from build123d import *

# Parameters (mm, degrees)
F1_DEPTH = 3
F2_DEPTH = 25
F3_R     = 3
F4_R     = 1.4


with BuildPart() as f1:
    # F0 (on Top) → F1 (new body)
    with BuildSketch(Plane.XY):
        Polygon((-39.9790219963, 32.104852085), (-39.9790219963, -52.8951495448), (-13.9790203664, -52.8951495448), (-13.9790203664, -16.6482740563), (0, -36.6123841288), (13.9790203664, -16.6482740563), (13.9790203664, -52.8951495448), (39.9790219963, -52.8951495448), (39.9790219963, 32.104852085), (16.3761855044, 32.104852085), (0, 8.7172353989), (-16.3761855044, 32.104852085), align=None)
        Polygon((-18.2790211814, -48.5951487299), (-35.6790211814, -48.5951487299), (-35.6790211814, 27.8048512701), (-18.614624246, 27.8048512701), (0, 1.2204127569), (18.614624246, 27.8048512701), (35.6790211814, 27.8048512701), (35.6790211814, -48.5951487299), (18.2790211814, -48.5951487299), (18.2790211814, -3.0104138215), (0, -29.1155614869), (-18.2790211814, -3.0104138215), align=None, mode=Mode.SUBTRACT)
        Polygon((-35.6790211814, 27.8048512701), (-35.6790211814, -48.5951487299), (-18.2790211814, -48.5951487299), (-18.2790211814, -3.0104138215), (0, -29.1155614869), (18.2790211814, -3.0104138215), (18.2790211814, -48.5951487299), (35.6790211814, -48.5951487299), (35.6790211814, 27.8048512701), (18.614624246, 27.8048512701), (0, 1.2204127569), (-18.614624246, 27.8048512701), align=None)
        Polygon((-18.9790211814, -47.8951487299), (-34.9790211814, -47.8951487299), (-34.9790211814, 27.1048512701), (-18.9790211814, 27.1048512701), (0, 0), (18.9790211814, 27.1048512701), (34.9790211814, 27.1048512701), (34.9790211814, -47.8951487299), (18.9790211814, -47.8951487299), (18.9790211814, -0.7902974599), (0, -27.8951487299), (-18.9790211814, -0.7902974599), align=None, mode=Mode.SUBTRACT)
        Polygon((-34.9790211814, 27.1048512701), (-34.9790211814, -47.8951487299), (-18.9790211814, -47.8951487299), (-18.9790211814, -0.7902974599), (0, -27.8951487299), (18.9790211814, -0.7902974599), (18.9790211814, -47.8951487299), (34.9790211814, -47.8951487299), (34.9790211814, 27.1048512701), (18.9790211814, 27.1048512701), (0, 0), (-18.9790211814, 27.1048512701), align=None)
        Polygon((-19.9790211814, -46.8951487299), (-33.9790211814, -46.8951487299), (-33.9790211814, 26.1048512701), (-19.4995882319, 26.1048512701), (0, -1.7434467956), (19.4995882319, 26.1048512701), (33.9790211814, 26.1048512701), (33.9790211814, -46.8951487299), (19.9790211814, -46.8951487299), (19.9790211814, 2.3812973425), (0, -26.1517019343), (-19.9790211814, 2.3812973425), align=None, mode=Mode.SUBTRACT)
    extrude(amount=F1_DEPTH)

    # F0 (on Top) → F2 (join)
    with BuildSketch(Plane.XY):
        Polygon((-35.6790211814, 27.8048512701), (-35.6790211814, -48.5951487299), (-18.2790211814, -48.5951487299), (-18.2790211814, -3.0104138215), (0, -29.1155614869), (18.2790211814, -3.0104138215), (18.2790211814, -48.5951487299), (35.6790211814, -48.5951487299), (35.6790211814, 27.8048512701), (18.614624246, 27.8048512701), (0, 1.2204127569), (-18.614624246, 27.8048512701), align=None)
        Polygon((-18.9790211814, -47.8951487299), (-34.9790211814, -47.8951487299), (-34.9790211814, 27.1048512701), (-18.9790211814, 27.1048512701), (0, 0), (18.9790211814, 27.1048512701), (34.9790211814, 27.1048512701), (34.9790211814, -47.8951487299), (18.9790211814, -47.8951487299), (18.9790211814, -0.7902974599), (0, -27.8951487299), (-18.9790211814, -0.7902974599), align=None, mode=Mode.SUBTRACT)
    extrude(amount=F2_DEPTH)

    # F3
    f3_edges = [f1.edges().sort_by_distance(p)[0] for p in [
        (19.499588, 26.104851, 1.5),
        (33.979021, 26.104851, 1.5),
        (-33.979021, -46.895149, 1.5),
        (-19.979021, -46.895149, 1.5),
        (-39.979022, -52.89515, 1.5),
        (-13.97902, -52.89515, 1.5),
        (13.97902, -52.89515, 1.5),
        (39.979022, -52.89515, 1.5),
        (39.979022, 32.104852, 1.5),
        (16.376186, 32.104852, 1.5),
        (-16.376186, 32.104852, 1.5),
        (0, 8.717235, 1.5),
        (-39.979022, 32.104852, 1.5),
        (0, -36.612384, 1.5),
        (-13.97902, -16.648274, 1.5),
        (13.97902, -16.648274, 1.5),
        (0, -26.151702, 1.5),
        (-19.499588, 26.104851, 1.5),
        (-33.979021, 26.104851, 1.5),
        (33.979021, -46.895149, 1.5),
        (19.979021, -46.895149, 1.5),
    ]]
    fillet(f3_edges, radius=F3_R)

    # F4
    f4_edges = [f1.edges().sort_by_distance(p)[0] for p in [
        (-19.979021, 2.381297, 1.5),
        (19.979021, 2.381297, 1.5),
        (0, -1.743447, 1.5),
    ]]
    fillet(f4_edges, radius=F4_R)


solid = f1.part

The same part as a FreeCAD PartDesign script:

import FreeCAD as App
import Part
import Sketcher
from FreeCAD import Vector
Q = App.Units.Quantity


def edges_at(feature, points):
    """Names of the edges that pass closest to the given points."""
    edges = feature.Shape.Edges
    near = lambda p: min(range(len(edges)), key=lambda i: edges[i].distToShape(Part.Vertex(*p))[0])
    return sorted({f"Edge{near(p) + 1}" for p in points})

doc = App.newDocument("Part")
body = doc.addObject("PartDesign::Body", "Body")

sketch1 = body.newObject("Sketcher::SketchObject", "Sketch")
sketch1.AttachmentSupport = (doc.getObject("XY_Plane"), [""])
sketch1.MapMode = "FlatFace"
sketch1.addGeometry(Part.LineSegment(Vector(-40, 32, 0), Vector(-40, -53, 0)), False)
sketch1.addGeometry(Part.LineSegment(Vector(-40, -53, 0), Vector(-14, -53, 0)), False)
sketch1.addGeometry(Part.LineSegment(Vector(-14, -53, 0), Vector(-14, -17, 0)), False)
sketch1.addGeometry(Part.LineSegment(Vector(-14, -17, 0), Vector(0, -37, 0)), False)
sketch1.addGeometry(Part.LineSegment(Vector(0, -37, 0), Vector(14, -17, 0)), False)
sketch1.addGeometry(Part.LineSegment(Vector(14, -17, 0), Vector(14, -53, 0)), False)
sketch1.addGeometry(Part.LineSegment(Vector(14, -53, 0), Vector(40, -53, 0)), False)
sketch1.addGeometry(Part.LineSegment(Vector(40, -53, 0), Vector(40, 32, 0)), False)
sketch1.addGeometry(Part.LineSegment(Vector(40, 32, 0), Vector(16, 32, 0)), False)
sketch1.addGeometry(Part.LineSegment(Vector(16, 32, 0), Vector(0, 9, 0)), False)
sketch1.addGeometry(Part.LineSegment(Vector(0, 9, 0), Vector(-16, 32, 0)), False)
sketch1.addGeometry(Part.LineSegment(Vector(-16, 32, 0), Vector(-40, 32, 0)), False)
sketch1.addGeometry(Part.LineSegment(Vector(-20, 2, 0), Vector(-20, -47, 0)), False)
sketch1.addGeometry(Part.LineSegment(Vector(-20, -47, 0), Vector(-34, -47, 0)), False)
sketch1.addGeometry(Part.LineSegment(Vector(-34, -47, 0), Vector(-34, 26, 0)), False)
sketch1.addGeometry(Part.LineSegment(Vector(-34, 26, 0), Vector(-19, 26, 0)), False)
sketch1.addGeometry(Part.LineSegment(Vector(-19, 26, 0), Vector(0, -2, 0)), False)
sketch1.addGeometry(Part.LineSegment(Vector(0, -2, 0), Vector(19, 26, 0)), False)
sketch1.addGeometry(Part.LineSegment(Vector(19, 26, 0), Vector(34, 26, 0)), False)
sketch1.addGeometry(Part.LineSegment(Vector(34, 26, 0), Vector(34, -47, 0)), False)
sketch1.addGeometry(Part.LineSegment(Vector(34, -47, 0), Vector(20, -47, 0)), False)
sketch1.addGeometry(Part.LineSegment(Vector(20, -47, 0), Vector(20, 2, 0)), False)
sketch1.addGeometry(Part.LineSegment(Vector(20, 2, 0), Vector(0, -26, 0)), False)
sketch1.addGeometry(Part.LineSegment(Vector(0, -26, 0), Vector(-20, 2, 0)), False)
sketch1.addConstraint(Sketcher.Constraint("Coincident", 0, 2, 1, 1))
sketch1.addConstraint(Sketcher.Constraint("Coincident", 1, 2, 2, 1))
sketch1.addConstraint(Sketcher.Constraint("Coincident", 2, 2, 3, 1))
sketch1.addConstraint(Sketcher.Constraint("Coincident", 3, 2, 4, 1))
sketch1.addConstraint(Sketcher.Constraint("Coincident", 4, 2, 5, 1))
sketch1.addConstraint(Sketcher.Constraint("Coincident", 5, 2, 6, 1))
sketch1.addConstraint(Sketcher.Constraint("Coincident", 6, 2, 7, 1))
sketch1.addConstraint(Sketcher.Constraint("Coincident", 7, 2, 8, 1))
sketch1.addConstraint(Sketcher.Constraint("Coincident", 8, 2, 9, 1))
sketch1.addConstraint(Sketcher.Constraint("Coincident", 9, 2, 10, 1))
sketch1.addConstraint(Sketcher.Constraint("Coincident", 10, 2, 11, 1))
sketch1.addConstraint(Sketcher.Constraint("Coincident", 11, 2, 0, 1))
sketch1.addConstraint(Sketcher.Constraint("Coincident", 12, 2, 13, 1))
sketch1.addConstraint(Sketcher.Constraint("Coincident", 13, 2, 14, 1))
sketch1.addConstraint(Sketcher.Constraint("Coincident", 14, 2, 15, 1))
sketch1.addConstraint(Sketcher.Constraint("Coincident", 15, 2, 16, 1))
sketch1.addConstraint(Sketcher.Constraint("Coincident", 16, 2, 17, 1))
sketch1.addConstraint(Sketcher.Constraint("Coincident", 17, 2, 18, 1))
sketch1.addConstraint(Sketcher.Constraint("Coincident", 18, 2, 19, 1))
sketch1.addConstraint(Sketcher.Constraint("Coincident", 19, 2, 20, 1))
sketch1.addConstraint(Sketcher.Constraint("Coincident", 20, 2, 21, 1))
sketch1.addConstraint(Sketcher.Constraint("Coincident", 21, 2, 22, 1))
sketch1.addConstraint(Sketcher.Constraint("Coincident", 22, 2, 23, 1))
sketch1.addConstraint(Sketcher.Constraint("Coincident", 23, 2, 12, 1))
sketch1.addConstraint(Sketcher.Constraint("Vertical", 0))
sketch1.addConstraint(Sketcher.Constraint("Horizontal", 1))
sketch1.addConstraint(Sketcher.Constraint("Vertical", 2))
sketch1.addConstraint(Sketcher.Constraint("Vertical", 5))
sketch1.addConstraint(Sketcher.Constraint("Horizontal", 6))
sketch1.addConstraint(Sketcher.Constraint("Vertical", 7))
sketch1.addConstraint(Sketcher.Constraint("Horizontal", 8))
sketch1.addConstraint(Sketcher.Constraint("Horizontal", 11))
sketch1.addConstraint(Sketcher.Constraint("Vertical", 12))
sketch1.addConstraint(Sketcher.Constraint("Horizontal", 13))
sketch1.addConstraint(Sketcher.Constraint("Vertical", 14))
sketch1.addConstraint(Sketcher.Constraint("Horizontal", 15))
sketch1.addConstraint(Sketcher.Constraint("Horizontal", 18))
sketch1.addConstraint(Sketcher.Constraint("Vertical", 19))
sketch1.addConstraint(Sketcher.Constraint("Horizontal", 20))
sketch1.addConstraint(Sketcher.Constraint("Vertical", 21))
sketch1.addConstraint(Sketcher.Constraint("Symmetric", 2, 2, 4, 2, -2))
sketch1.addConstraint(Sketcher.Constraint("Symmetric", 0, 2, 6, 2, -2))
sketch1.addConstraint(Sketcher.Constraint("Symmetric", 8, 2, 10, 2, -2))
sketch1.addConstraint(Sketcher.Constraint("Symmetric", 15, 2, 17, 2, -2))
sketch1.addConstraint(Sketcher.Constraint("Symmetric", 13, 2, 19, 2, -2))
sketch1.addConstraint(Sketcher.Constraint("Symmetric", 21, 2, 23, 2, -2))
sketch1.addConstraint(Sketcher.Constraint("PointOnObject", 3, 2, -2))
sketch1.addConstraint(Sketcher.Constraint("PointOnObject", 9, 2, -2))
sketch1.addConstraint(Sketcher.Constraint("PointOnObject", 16, 2, -2))
sketch1.addConstraint(Sketcher.Constraint("PointOnObject", 22, 2, -2))
sketch1.addConstraint(Sketcher.Constraint("Parallel", 4, 9))
sketch1.addConstraint(Sketcher.Constraint("Parallel", 10, 16))
sketch1.addConstraint(Sketcher.Constraint("Parallel", 17, 22))
sketch1.addConstraint(Sketcher.Constraint("DistanceX", 1, 1, 1, 2, Q("26.000002 mm")))
sketch1.addConstraint(Sketcher.Constraint("DistanceX", 13, 2, 13, 1, Q("14 mm")))
sketch1.addConstraint(Sketcher.Constraint("DistanceY", 0, 2, 0, 1, Q("85.000002 mm")))
sketch1.addConstraint(Sketcher.Constraint("DistanceY", 14, 1, 14, 2, Q("73 mm")))
sketch1.addConstraint(Sketcher.Constraint("Angle", 3, Q("-55 deg")))
sketch1.addConstraint(Sketcher.Constraint("DistanceX", 12, 2, 1, 2, Q("6.000001 mm")))
sketch1.addConstraint(Sketcher.Constraint("DistanceY", 1, 2, 12, 2, Q("6.000001 mm")))
sketch1.addConstraint(Sketcher.Constraint("DistanceY", 22, 2, -1, 1, Q("26.151702 mm")))
sketch1.addConstraint(Sketcher.Constraint("DistanceY", 16, 2, 15, 2, Q("27.848298 mm")))
sketch1.addConstraint(Sketcher.Constraint("Distance", 3, Q("24.371678 mm")))
sketch1.addConstraint(Sketcher.Constraint("Distance", 9, Q("28.551008 mm")))
sketch1.addConstraint(Sketcher.Constraint("DistanceY", 2, 1, 2, 2, Q("36.246875 mm")))
sketch1.addConstraint(Sketcher.Constraint("DistanceY", 12, 2, 12, 1, Q("49.276446 mm")))
pad1 = body.newObject("PartDesign::Pad", "Pad")
pad1.Profile = sketch1
pad1.Length = 3

sketch2 = body.newObject("Sketcher::SketchObject", "Sketch001")
sketch2.AttachmentSupport = (doc.getObject("XY_Plane"), [""])
sketch2.MapMode = "FlatFace"
sketch2.addGeometry(Part.LineSegment(Vector(-36, 28, 0), Vector(-36, -49, 0)), False)
sketch2.addGeometry(Part.LineSegment(Vector(-36, -49, 0), Vector(-18, -49, 0)), False)
sketch2.addGeometry(Part.LineSegment(Vector(-18, -49, 0), Vector(-18, -3, 0)), False)
sketch2.addGeometry(Part.LineSegment(Vector(-18, -3, 0), Vector(0, -29, 0)), False)
sketch2.addGeometry(Part.LineSegment(Vector(0, -29, 0), Vector(18, -3, 0)), False)
sketch2.addGeometry(Part.LineSegment(Vector(18, -3, 0), Vector(18, -49, 0)), False)
sketch2.addGeometry(Part.LineSegment(Vector(18, -49, 0), Vector(36, -49, 0)), False)
sketch2.addGeometry(Part.LineSegment(Vector(36, -49, 0), Vector(36, 28, 0)), False)
sketch2.addGeometry(Part.LineSegment(Vector(36, 28, 0), Vector(19, 28, 0)), False)
sketch2.addGeometry(Part.LineSegment(Vector(19, 28, 0), Vector(0, 1, 0)), False)
sketch2.addGeometry(Part.LineSegment(Vector(0, 1, 0), Vector(-19, 28, 0)), False)
sketch2.addGeometry(Part.LineSegment(Vector(-19, 28, 0), Vector(-36, 28, 0)), False)
sketch2.addGeometry(Part.LineSegment(Vector(-19, -1, 0), Vector(-19, -48, 0)), False)
sketch2.addGeometry(Part.LineSegment(Vector(-19, -48, 0), Vector(-35, -48, 0)), False)
sketch2.addGeometry(Part.LineSegment(Vector(-35, -48, 0), Vector(-35, 27, 0)), False)
sketch2.addGeometry(Part.LineSegment(Vector(-35, 27, 0), Vector(-19, 27, 0)), False)
sketch2.addGeometry(Part.LineSegment(Vector(-19, 27, 0), Vector(0, 0, 0)), False)
sketch2.addGeometry(Part.LineSegment(Vector(0, 0, 0), Vector(19, 27, 0)), False)
sketch2.addGeometry(Part.LineSegment(Vector(19, 27, 0), Vector(35, 27, 0)), False)
sketch2.addGeometry(Part.LineSegment(Vector(35, 27, 0), Vector(35, -48, 0)), False)
sketch2.addGeometry(Part.LineSegment(Vector(35, -48, 0), Vector(19, -48, 0)), False)
sketch2.addGeometry(Part.LineSegment(Vector(19, -48, 0), Vector(19, -1, 0)), False)
sketch2.addGeometry(Part.LineSegment(Vector(19, -1, 0), Vector(0, -28, 0)), False)
sketch2.addGeometry(Part.LineSegment(Vector(0, -28, 0), Vector(-19, -1, 0)), False)
sketch2.addConstraint(Sketcher.Constraint("Coincident", 0, 2, 1, 1))
sketch2.addConstraint(Sketcher.Constraint("Coincident", 1, 2, 2, 1))
sketch2.addConstraint(Sketcher.Constraint("Coincident", 2, 2, 3, 1))
sketch2.addConstraint(Sketcher.Constraint("Coincident", 3, 2, 4, 1))
sketch2.addConstraint(Sketcher.Constraint("Coincident", 4, 2, 5, 1))
sketch2.addConstraint(Sketcher.Constraint("Coincident", 5, 2, 6, 1))
sketch2.addConstraint(Sketcher.Constraint("Coincident", 6, 2, 7, 1))
sketch2.addConstraint(Sketcher.Constraint("Coincident", 7, 2, 8, 1))
sketch2.addConstraint(Sketcher.Constraint("Coincident", 8, 2, 9, 1))
sketch2.addConstraint(Sketcher.Constraint("Coincident", 9, 2, 10, 1))
sketch2.addConstraint(Sketcher.Constraint("Coincident", 10, 2, 11, 1))
sketch2.addConstraint(Sketcher.Constraint("Coincident", 11, 2, 0, 1))
sketch2.addConstraint(Sketcher.Constraint("Coincident", 12, 2, 13, 1))
sketch2.addConstraint(Sketcher.Constraint("Coincident", 13, 2, 14, 1))
sketch2.addConstraint(Sketcher.Constraint("Coincident", 14, 2, 15, 1))
sketch2.addConstraint(Sketcher.Constraint("Coincident", 15, 2, 16, 1))
sketch2.addConstraint(Sketcher.Constraint("Coincident", 16, 2, 17, 1))
sketch2.addConstraint(Sketcher.Constraint("Coincident", 17, 2, 18, 1))
sketch2.addConstraint(Sketcher.Constraint("Coincident", 18, 2, 19, 1))
sketch2.addConstraint(Sketcher.Constraint("Coincident", 19, 2, 20, 1))
sketch2.addConstraint(Sketcher.Constraint("Coincident", 20, 2, 21, 1))
sketch2.addConstraint(Sketcher.Constraint("Coincident", 21, 2, 22, 1))
sketch2.addConstraint(Sketcher.Constraint("Coincident", 22, 2, 23, 1))
sketch2.addConstraint(Sketcher.Constraint("Coincident", 23, 2, 12, 1))
sketch2.addConstraint(Sketcher.Constraint("Vertical", 0))
sketch2.addConstraint(Sketcher.Constraint("Horizontal", 1))
sketch2.addConstraint(Sketcher.Constraint("Vertical", 2))
sketch2.addConstraint(Sketcher.Constraint("Vertical", 5))
sketch2.addConstraint(Sketcher.Constraint("Horizontal", 6))
sketch2.addConstraint(Sketcher.Constraint("Vertical", 7))
sketch2.addConstraint(Sketcher.Constraint("Horizontal", 8))
sketch2.addConstraint(Sketcher.Constraint("Horizontal", 11))
sketch2.addConstraint(Sketcher.Constraint("Vertical", 12))
sketch2.addConstraint(Sketcher.Constraint("Horizontal", 13))
sketch2.addConstraint(Sketcher.Constraint("Vertical", 14))
sketch2.addConstraint(Sketcher.Constraint("Horizontal", 15))
sketch2.addConstraint(Sketcher.Constraint("Horizontal", 18))
sketch2.addConstraint(Sketcher.Constraint("Vertical", 19))
sketch2.addConstraint(Sketcher.Constraint("Horizontal", 20))
sketch2.addConstraint(Sketcher.Constraint("Vertical", 21))
sketch2.addConstraint(Sketcher.Constraint("Coincident", 16, 2, -1, 1))
sketch2.addConstraint(Sketcher.Constraint("Symmetric", 2, 2, 4, 2, -2))
sketch2.addConstraint(Sketcher.Constraint("Symmetric", 0, 2, 6, 2, -2))
sketch2.addConstraint(Sketcher.Constraint("Symmetric", 8, 2, 10, 2, -2))
sketch2.addConstraint(Sketcher.Constraint("Symmetric", 15, 2, 17, 2, -2))
sketch2.addConstraint(Sketcher.Constraint("Symmetric", 13, 2, 19, 2, -2))
sketch2.addConstraint(Sketcher.Constraint("Symmetric", 21, 2, 23, 2, -2))
sketch2.addConstraint(Sketcher.Constraint("PointOnObject", 3, 2, -2))
sketch2.addConstraint(Sketcher.Constraint("PointOnObject", 9, 2, -2))
sketch2.addConstraint(Sketcher.Constraint("PointOnObject", 22, 2, -2))
sketch2.addConstraint(Sketcher.Constraint("Parallel", 4, 9))
sketch2.addConstraint(Sketcher.Constraint("Parallel", 10, 16))
sketch2.addConstraint(Sketcher.Constraint("Parallel", 17, 22))
sketch2.addConstraint(Sketcher.Constraint("Vertical", 12, 2, 15, 2))
sketch2.addConstraint(Sketcher.Constraint("DistanceX", 13, 2, 13, 1, Q("16 mm")))
sketch2.addConstraint(Sketcher.Constraint("DistanceY", 14, 1, 14, 2, Q("75 mm")))
sketch2.addConstraint(Sketcher.Constraint("Angle", 3, Q("-55 deg")))
sketch2.addConstraint(Sketcher.Constraint("DistanceX", 1, 1, 1, 2, Q("17.4 mm")))
sketch2.addConstraint(Sketcher.Constraint("DistanceY", 0, 2, 0, 1, Q("76.4 mm")))
sketch2.addConstraint(Sketcher.Constraint("DistanceY", 12, 2, 22, 2, Q("20 mm")))
sketch2.addConstraint(Sketcher.Constraint("DistanceX", 12, 2, 1, 2, Q("0.7 mm")))
sketch2.addConstraint(Sketcher.Constraint("DistanceY", 1, 2, 12, 2, Q("0.7 mm")))
sketch2.addConstraint(Sketcher.Constraint("Distance", 3, Q("31.868501 mm")))
sketch2.addConstraint(Sketcher.Constraint("DistanceX", 8, 2, 8, 1, Q("17.064397 mm")))
sketch2.addConstraint(Sketcher.Constraint("DistanceY", 2, 1, 2, 2, Q("45.584735 mm")))
pad2 = body.newObject("PartDesign::Pad", "Pad001")
pad2.Profile = sketch2
pad2.Length = 25
doc.recompute()

fillet = body.newObject("PartDesign::Fillet", "Fillet")
fillet.Base = (pad2, edges_at(pad2, [
    (19.5, 26.105, 1.5),
    (33.979, 26.105, 1.5),
    (-33.979, -46.895, 1.5),
    (-19.979, -46.895, 1.5),
    (-39.979, -52.895, 1.5),
    (-13.979, -52.895, 1.5),
    (13.979, -52.895, 1.5),
    (39.979, -52.895, 1.5),
    (39.979, 32.105, 1.5),
    (16.376, 32.105, 1.5),
    (-16.376, 32.105, 1.5),
    (0, 8.717, 1.5),
    (-39.979, 32.105, 1.5),
    (0, -36.612, 1.5),
    (-13.979, -16.648, 1.5),
    (13.979, -16.648, 1.5),
    (0, -26.152, 1.5),
    (-19.5, 26.105, 1.5),
    (-33.979, 26.105, 1.5),
    (33.979, -46.895, 1.5),
    (19.979, -46.895, 1.5),
]))
fillet.Radius = 3
doc.recompute()

fillet2 = body.newObject("PartDesign::Fillet", "Fillet001")
fillet2.Base = (fillet, edges_at(fillet, [(-19.979, 2.381, 1.5), (19.979, 2.381, 1.5), (0, -1.743, 1.5)]))
fillet2.Radius = 1.4

doc.recompute()
